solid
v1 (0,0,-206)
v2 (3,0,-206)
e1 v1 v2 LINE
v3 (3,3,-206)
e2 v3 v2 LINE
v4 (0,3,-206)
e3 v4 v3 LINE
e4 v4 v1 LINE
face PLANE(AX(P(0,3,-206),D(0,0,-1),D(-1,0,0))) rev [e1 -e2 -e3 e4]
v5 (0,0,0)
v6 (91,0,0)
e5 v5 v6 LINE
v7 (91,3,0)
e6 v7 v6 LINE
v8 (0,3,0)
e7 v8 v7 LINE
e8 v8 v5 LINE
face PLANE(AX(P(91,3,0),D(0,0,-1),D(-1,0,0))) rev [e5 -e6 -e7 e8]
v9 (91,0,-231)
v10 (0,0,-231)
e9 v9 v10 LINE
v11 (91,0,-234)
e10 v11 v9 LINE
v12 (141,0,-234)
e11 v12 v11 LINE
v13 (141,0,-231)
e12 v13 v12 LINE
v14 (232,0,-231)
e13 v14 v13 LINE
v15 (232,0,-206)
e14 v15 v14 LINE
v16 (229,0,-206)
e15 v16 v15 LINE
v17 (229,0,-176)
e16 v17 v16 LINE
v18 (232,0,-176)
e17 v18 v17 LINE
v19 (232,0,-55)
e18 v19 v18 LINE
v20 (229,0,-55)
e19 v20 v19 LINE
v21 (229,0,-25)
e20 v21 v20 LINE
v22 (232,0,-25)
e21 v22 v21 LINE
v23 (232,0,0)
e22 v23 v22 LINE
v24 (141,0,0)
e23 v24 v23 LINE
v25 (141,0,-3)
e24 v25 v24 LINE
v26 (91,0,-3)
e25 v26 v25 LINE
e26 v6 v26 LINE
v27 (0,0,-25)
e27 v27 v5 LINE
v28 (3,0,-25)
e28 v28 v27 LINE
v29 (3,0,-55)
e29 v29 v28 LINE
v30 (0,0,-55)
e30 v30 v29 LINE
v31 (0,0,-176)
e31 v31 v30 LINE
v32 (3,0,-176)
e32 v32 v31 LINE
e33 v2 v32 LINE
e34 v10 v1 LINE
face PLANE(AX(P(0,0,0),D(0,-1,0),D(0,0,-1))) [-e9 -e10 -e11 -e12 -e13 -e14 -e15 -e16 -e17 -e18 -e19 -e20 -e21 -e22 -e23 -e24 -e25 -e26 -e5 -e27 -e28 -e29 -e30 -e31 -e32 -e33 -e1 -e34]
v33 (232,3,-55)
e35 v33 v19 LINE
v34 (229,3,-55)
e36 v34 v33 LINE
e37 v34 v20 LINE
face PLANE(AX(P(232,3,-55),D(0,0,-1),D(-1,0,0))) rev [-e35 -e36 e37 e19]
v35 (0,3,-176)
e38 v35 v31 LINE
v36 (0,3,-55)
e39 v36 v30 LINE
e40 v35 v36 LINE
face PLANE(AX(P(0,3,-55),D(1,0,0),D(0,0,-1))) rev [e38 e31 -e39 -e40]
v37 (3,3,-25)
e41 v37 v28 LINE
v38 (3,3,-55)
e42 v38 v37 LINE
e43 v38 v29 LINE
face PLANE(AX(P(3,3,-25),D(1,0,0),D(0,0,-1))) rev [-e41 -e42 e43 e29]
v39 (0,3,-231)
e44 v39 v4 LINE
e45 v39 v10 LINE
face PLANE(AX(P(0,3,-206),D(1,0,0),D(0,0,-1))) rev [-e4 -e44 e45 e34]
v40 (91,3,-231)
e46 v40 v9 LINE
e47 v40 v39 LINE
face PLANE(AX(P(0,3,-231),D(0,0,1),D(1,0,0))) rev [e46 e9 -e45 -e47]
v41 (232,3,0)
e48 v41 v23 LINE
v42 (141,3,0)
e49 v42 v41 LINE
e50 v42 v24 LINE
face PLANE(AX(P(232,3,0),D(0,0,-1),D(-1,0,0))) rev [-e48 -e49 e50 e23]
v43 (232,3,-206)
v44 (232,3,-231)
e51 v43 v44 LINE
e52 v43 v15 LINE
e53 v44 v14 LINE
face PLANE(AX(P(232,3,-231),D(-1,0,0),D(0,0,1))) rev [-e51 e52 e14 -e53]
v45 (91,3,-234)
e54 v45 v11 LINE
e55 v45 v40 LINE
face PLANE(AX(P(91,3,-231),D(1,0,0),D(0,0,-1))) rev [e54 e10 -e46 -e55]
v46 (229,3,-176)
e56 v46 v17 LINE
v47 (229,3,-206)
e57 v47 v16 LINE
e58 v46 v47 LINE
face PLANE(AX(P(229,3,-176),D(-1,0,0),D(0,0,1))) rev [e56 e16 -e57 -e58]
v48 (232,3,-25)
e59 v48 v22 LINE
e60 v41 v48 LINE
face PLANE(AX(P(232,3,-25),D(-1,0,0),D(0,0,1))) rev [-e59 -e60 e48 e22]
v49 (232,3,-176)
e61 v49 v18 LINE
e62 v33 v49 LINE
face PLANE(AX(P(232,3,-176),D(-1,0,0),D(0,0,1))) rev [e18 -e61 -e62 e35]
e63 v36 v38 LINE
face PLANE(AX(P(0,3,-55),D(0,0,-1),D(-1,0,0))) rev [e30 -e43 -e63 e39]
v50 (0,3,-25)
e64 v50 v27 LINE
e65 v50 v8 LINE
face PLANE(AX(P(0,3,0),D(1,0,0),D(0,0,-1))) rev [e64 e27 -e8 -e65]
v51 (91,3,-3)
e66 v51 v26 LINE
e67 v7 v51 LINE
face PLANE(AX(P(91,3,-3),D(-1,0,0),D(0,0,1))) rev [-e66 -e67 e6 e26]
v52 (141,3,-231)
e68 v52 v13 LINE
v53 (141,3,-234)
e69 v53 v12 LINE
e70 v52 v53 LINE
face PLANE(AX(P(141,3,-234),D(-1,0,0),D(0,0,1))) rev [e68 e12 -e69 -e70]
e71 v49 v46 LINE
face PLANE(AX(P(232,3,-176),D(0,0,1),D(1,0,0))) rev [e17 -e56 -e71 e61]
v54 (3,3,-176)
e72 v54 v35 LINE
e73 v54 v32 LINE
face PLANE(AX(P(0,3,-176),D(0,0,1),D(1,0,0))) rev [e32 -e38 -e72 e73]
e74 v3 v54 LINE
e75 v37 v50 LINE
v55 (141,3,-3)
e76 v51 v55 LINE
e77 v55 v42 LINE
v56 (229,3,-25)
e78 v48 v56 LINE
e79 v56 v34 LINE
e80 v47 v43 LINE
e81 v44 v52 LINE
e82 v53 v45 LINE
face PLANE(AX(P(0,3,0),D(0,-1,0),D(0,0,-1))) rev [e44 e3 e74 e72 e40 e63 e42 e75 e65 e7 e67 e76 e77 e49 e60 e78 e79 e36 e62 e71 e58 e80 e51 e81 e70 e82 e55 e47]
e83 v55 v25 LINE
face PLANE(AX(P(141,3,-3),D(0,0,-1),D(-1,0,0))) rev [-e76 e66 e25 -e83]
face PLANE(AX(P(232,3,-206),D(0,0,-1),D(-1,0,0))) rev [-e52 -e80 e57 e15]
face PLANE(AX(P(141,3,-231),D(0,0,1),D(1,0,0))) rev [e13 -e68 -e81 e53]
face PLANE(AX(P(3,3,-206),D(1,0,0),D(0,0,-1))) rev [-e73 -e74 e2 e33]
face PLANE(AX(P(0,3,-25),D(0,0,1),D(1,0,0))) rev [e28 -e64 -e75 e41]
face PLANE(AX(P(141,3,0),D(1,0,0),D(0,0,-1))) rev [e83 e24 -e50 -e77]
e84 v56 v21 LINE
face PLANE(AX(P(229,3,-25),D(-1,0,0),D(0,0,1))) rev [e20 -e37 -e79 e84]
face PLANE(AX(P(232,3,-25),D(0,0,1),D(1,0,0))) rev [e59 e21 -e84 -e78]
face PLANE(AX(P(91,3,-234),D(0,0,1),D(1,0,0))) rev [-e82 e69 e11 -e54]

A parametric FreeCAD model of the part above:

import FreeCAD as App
import Part
import Sketcher
from FreeCAD import Vector


def add_polygon(sketch, points):
    """Adds a closed chain of lines whose ends are joined by coincident constraints."""
    first, n = sketch.GeometryCount, len(points)
    for a, b in zip(points, points[1:] + points[:1]):
        sketch.addGeometry(Part.LineSegment(App.Vector(*a, 0), App.Vector(*b, 0)), False)
    for i in range(n):
        sketch.addConstraint(Sketcher.Constraint("Coincident", first + i, 2, first + (i + 1) % n, 1))

doc = App.newDocument("Part")
body = doc.addObject("PartDesign::Body", "Body")

# Sketch on XZ plane
sketch1 = body.newObject("Sketcher::SketchObject", "Sketch")
sketch1.AttachmentSupport = (doc.getObject("XZ_Plane"), [""])
sketch1.MapMode = "FlatFace"
add_polygon(sketch1, [(0, -25), (0, 0), (91, 0), (91, -3), (141, -3), (141, 0), (232, 0), (232, -25), (229, -25), (229, -55), (232, -55), (232, -176), (229, -176), (229, -206), (232, -206), (232, -231), (141, -231), (141, -234), (91, -234), (91, -231), (0, -231), (0, -206), (3, -206), (3, -176), (0, -176), (0, -55), (3, -55), (3, -25)])  # lines 0-27
sketch1.addConstraint(Sketcher.Constraint("Vertical", 0))
sketch1.addConstraint(Sketcher.Constraint("Horizontal", 1))
sketch1.addConstraint(Sketcher.Constraint("Vertical", 2))
sketch1.addConstraint(Sketcher.Constraint("Horizontal", 3))
sketch1.addConstraint(Sketcher.Constraint("Vertical", 4))
sketch1.addConstraint(Sketcher.Constraint("Horizontal", 5))
sketch1.addConstraint(Sketcher.Constraint("Vertical", 6))
sketch1.addConstraint(Sketcher.Constraint("Horizontal", 7))
sketch1.addConstraint(Sketcher.Constraint("Vertical", 8))
sketch1.addConstraint(Sketcher.Constraint("Horizontal", 9))
sketch1.addConstraint(Sketcher.Constraint("Vertical", 10))
sketch1.addConstraint(Sketcher.Constraint("Horizontal", 11))
sketch1.addConstraint(Sketcher.Constraint("Vertical", 12))
sketch1.addConstraint(Sketcher.Constraint("Horizontal", 13))
sketch1.addConstraint(Sketcher.Constraint("Vertical", 14))
sketch1.addConstraint(Sketcher.Constraint("Horizontal", 15))
sketch1.addConstraint(Sketcher.Constraint("Vertical", 16))
sketch1.addConstraint(Sketcher.Constraint("Horizontal", 17))
sketch1.addConstraint(Sketcher.Constraint("Vertical", 18))
sketch1.addConstraint(Sketcher.Constraint("Horizontal", 19))
sketch1.addConstraint(Sketcher.Constraint("Vertical", 20))
sketch1.addConstraint(Sketcher.Constraint("Horizontal", 21))
sketch1.addConstraint(Sketcher.Constraint("Vertical", 22))
sketch1.addConstraint(Sketcher.Constraint("Horizontal", 23))
sketch1.addConstraint(Sketcher.Constraint("Vertical", 24))
sketch1.addConstraint(Sketcher.Constraint("Horizontal", 25))
sketch1.addConstraint(Sketcher.Constraint("Vertical", 26))
sketch1.addConstraint(Sketcher.Constraint("Horizontal", 27))
sketch1.addConstraint(Sketcher.Constraint("Coincident", 0, 2, -1, 1))
sketch1.addConstraint(Sketcher.Constraint("PointOnObject", 4, 2, -1))
sketch1.addConstraint(Sketcher.Constraint("PointOnObject", 19, 2, -2))
sketch1.addConstraint(Sketcher.Constraint("PointOnObject", 23, 2, -2))
sketch1.addConstraint(Sketcher.Constraint("Horizontal", 15, 2, 18, 2))
sketch1.addConstraint(Sketcher.Constraint("Horizontal", 13, 2, 20, 2))
sketch1.addConstraint(Sketcher.Constraint("Horizontal", 11, 2, 22, 2))
sketch1.addConstraint(Sketcher.Constraint("Horizontal", 9, 2, 24, 2))
sketch1.addConstraint(Sketcher.Constraint("Horizontal", 7, 2, 26, 2))
sketch1.addConstraint(Sketcher.Constraint("Vertical", 6, 2, 9, 2))
sketch1.addConstraint(Sketcher.Constraint("Vertical", 8, 2, 11, 2))
sketch1.addConstraint(Sketcher.Constraint("Vertical", 10, 2, 13, 2))
sketch1.addConstraint(Sketcher.Constraint("Vertical", 4, 2, 15, 2))
sketch1.addConstraint(Sketcher.Constraint("Vertical", 2, 2, 17, 2))
sketch1.addConstraint(Sketcher.Constraint("Vertical", 22, 2, 25, 2))
sketch1.addConstraint(Sketcher.Constraint("Equal", 1, 5))
sketch1.addConstraint(Sketcher.Constraint("Equal", 13, 21))
sketch1.addConstraint(Sketcher.Constraint("Equal", 27, 2))
sketch1.addConstraint(Sketcher.Constraint("Equal", 8, 12))
sketch1.addConstraint(Sketcher.Constraint("Equal", 6, 14))
sketch1.addConstraint(Sketcher.Constraint("Equal", 4, 16))
sketch1.addConstraint(Sketcher.Constraint("DistanceX", 1, 1, 1, 2, 91.0))
sketch1.addConstraint(Sketcher.Constraint("DistanceX", 3, 1, 3, 2, 50.0))
sketch1.addConstraint(Sketcher.Constraint("DistanceX", 7, 2, 7, 1, 3.0))
sketch1.addConstraint(Sketcher.Constraint("DistanceY", 0, 1, 0, 2, 25.0))
sketch1.addConstraint(Sketcher.Constraint("DistanceY", 8, 2, 8, 1, 30.0))
sketch1.addConstraint(Sketcher.Constraint("DistanceY", 10, 2, 10, 1, 121.0))
pad1 = body.newObject("PartDesign::Pad", "Pad")
pad1.Profile = sketch1
pad1.Length = 3
pad1.Reversed = True

doc.recompute()
